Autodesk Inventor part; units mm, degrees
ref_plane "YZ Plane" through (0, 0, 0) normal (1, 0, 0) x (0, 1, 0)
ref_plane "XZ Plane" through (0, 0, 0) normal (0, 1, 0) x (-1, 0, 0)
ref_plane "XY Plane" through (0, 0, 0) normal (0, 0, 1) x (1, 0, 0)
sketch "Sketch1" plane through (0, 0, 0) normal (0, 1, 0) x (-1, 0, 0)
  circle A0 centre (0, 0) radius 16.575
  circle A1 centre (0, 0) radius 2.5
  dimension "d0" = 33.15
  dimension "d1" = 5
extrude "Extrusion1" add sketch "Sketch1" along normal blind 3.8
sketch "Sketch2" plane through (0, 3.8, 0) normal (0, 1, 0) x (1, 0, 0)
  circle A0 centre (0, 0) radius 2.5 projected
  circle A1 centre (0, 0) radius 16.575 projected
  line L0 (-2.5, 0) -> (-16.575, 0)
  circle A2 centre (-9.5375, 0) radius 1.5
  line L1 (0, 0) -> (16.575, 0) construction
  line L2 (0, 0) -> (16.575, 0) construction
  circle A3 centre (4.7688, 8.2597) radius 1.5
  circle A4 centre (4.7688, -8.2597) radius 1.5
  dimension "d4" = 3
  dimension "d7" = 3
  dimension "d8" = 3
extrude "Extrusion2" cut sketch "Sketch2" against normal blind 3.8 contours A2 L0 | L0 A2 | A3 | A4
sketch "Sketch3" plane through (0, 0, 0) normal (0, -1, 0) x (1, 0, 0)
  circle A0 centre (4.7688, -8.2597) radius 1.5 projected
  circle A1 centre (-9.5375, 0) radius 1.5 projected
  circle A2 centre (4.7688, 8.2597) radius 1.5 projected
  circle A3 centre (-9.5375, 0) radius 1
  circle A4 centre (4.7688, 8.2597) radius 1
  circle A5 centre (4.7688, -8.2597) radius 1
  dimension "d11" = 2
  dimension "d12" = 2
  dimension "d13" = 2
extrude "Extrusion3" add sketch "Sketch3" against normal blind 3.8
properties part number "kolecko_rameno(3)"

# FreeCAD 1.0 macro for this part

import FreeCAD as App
import Part
import Sketcher

doc = App.newDocument("Part")
body = doc.addObject("PartDesign::Body", "Body")

sketch1 = doc.addObject("Sketcher::SketchObject", "Sketch")
body.addObject(sketch1)
sketch1.AttachmentSupport = (doc.XZ_Plane, [""])
sketch1.MapMode = "FlatFace"
sketch1.addGeometry([
    Part.Circle(App.Vector(0, 0, 0), App.Vector(0, 0, 1), 16.6),
    Part.Circle(App.Vector(0, 0, 0), App.Vector(0, 0, 1), 2.5),
], False)
sketch1.addConstraint([
    Sketcher.Constraint("Coincident", 0, 3, -1, 1),
    Sketcher.Constraint("Coincident", 1, 3, -1, 1),
    Sketcher.Constraint("Diameter", 1, 5.0),
    Sketcher.Constraint("Diameter", 0, 33.15),
])
pad1 = doc.addObject("PartDesign::Pad", "Pad")
body.addObject(pad1)
pad1.Profile = sketch1
pad1.Length = 3.8
pad1.Reversed = True

sketch2 = doc.addObject("Sketcher::SketchObject", "Sketch001")
body.addObject(sketch2)
sketch2.AttachmentSupport = (doc.XZ_Plane, [""])
sketch2.MapMode = "FlatFace"
sketch2.AttachmentOffset = App.Placement(App.Vector(0, 0, -3.8), App.Rotation())
sketch2.addGeometry([
    Part.Circle(App.Vector(-9.5, 0, 0), App.Vector(0, 0, 1), 1.5),
    Part.Circle(App.Vector(4.8, -8.3, 0), App.Vector(0, 0, 1), 1.5),
    Part.Circle(App.Vector(4.8, 8.3, 0), App.Vector(0, 0, 1), 1.5),
], False)
sketch2.addConstraint([
    Sketcher.Constraint("Equal", 0, 1),
    Sketcher.Constraint("Equal", 1, 2),
    Sketcher.Constraint("Symmetric", 1, 3, 2, 3, -1),
    Sketcher.Constraint("PointOnObject", 0, 3, -1),
    Sketcher.Constraint("Diameter", 0, 3.0),
    Sketcher.Constraint("DistanceX", 0, 3, -1, 1, 9.5375),
    Sketcher.Constraint("DistanceX", -1, 1, 1, 3, 4.7688),
    Sketcher.Constraint("DistanceY", 1, 3, -1, 1, 8.2597),
])
pocket1 = doc.addObject("PartDesign::Pocket", "Pocket")
body.addObject(pocket1)
pocket1.Profile = sketch2
pocket1.Length = 3.8
pocket1.Reversed = True

sketch3 = doc.addObject("Sketcher::SketchObject", "Sketch002")
body.addObject(sketch3)
sketch3.AttachmentSupport = (doc.XZ_Plane, [""])
sketch3.MapMode = "FlatFace"
sketch3.addGeometry([
    Part.Circle(App.Vector(4.8, -8.3, 0), App.Vector(0, 0, 1), 1.5),
    Part.Circle(App.Vector(4.8, -8.3, 0), App.Vector(0, 0, 1), 1),
    Part.Circle(App.Vector(-9.5, 0, 0), App.Vector(0, 0, 1), 1.5),
    Part.Circle(App.Vector(-9.5, 0, 0), App.Vector(0, 0, 1), 1),
    Part.Circle(App.Vector(4.8, 8.3, 0), App.Vector(0, 0, 1), 1.5),
    Part.Circle(App.Vector(4.8, 8.3, 0), App.Vector(0, 0, 1), 1),
], False)
sketch3.addConstraint([
    Sketcher.Constraint("Coincident", 1, 3, 0, 3),
    Sketcher.Constraint("Coincident", 3, 3, 2, 3),
    Sketcher.Constraint("Coincident", 5, 3, 4, 3),
    Sketcher.Constraint("Equal", 0, 2),
    Sketcher.Constraint("Equal", 1, 3),
    Sketcher.Constraint("Equal", 2, 4),
    Sketcher.Constraint("Equal", 3, 5),
    Sketcher.Constraint("Symmetric", 0, 3, 4, 3, -1),
    Sketcher.Constraint("PointOnObject", 2, 3, -1),
    Sketcher.Constraint("Diameter", 1, 2.0),
    Sketcher.Constraint("Diameter", 0, 3.0),
    Sketcher.Constraint("DistanceX", -1, 1, 0, 3, 4.7688),
    Sketcher.Constraint("DistanceY", 0, 3, -1, 1, 8.2597),
    Sketcher.Constraint("DistanceX", 2, 3, -1, 1, 9.5375),
])
pad2 = doc.addObject("PartDesign::Pad", "Pad001")
body.addObject(pad2)
pad2.Profile = sketch3
pad2.Length = 3.8
pad2.Reversed = True

doc.recompute()
